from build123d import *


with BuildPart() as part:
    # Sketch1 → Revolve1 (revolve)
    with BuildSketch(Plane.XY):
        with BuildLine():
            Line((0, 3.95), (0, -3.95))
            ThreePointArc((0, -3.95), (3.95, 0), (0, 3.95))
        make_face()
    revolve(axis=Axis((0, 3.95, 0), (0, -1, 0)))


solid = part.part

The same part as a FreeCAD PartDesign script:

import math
import FreeCAD as App
import Part
import Sketcher

doc = App.newDocument("Part")
params = doc.addObject("Spreadsheet::Sheet", "Params")
for row, (alias, value) in enumerate([
    ("sketch1_radius", "3.95 mm"),
    ("revolution_angle", "360 deg"),
], start=1):
    params.set(f"A{row}", alias)
    params.set(f"B{row}", "=" + value)
    params.setAlias(f"B{row}", alias)

body = doc.addObject("PartDesign::Body", "Body")

sketch1 = body.newObject("Sketcher::SketchObject", "Sketch")
sketch1.AttachmentSupport = (doc.getObject("XY_Plane"), [""])
sketch1.MapMode = "FlatFace"
sketch1.addGeometry(Part.LineSegment(App.Vector(0, 3.95, 0), App.Vector(0, -3.95, 0)), False)
sketch1.addGeometry(Part.ArcOfCircle(Part.Circle(App.Vector(0, 0, 0), App.Vector(0, 0, 1), 3.95), math.radians(-90), math.radians(90)), False)
sketch1.addConstraint(Sketcher.Constraint("Coincident", 0, 1, 1, 2))
sketch1.addConstraint(Sketcher.Constraint("Coincident", 1, 1, 0, 2))
sketch1.addConstraint(Sketcher.Constraint("Vertical", 0))
sketch1.addConstraint(Sketcher.Constraint("Coincident", 1, 3, -1, 1))
sketch1.addConstraint(Sketcher.Constraint("PointOnObject", 0, 1, -2))
sketch1.addConstraint(Sketcher.Constraint("Radius", 1, 3.95))
sketch1.setExpression("Constraints[5]", "Params.sketch1_radius")
revolution = body.newObject("PartDesign::Revolution", "Revolution")
revolution.Profile = sketch1
revolution.ReferenceAxis = (sketch1, ["V_Axis"])
revolution.setExpression("Angle", "Params.revolution_angle")

doc.recompute()
